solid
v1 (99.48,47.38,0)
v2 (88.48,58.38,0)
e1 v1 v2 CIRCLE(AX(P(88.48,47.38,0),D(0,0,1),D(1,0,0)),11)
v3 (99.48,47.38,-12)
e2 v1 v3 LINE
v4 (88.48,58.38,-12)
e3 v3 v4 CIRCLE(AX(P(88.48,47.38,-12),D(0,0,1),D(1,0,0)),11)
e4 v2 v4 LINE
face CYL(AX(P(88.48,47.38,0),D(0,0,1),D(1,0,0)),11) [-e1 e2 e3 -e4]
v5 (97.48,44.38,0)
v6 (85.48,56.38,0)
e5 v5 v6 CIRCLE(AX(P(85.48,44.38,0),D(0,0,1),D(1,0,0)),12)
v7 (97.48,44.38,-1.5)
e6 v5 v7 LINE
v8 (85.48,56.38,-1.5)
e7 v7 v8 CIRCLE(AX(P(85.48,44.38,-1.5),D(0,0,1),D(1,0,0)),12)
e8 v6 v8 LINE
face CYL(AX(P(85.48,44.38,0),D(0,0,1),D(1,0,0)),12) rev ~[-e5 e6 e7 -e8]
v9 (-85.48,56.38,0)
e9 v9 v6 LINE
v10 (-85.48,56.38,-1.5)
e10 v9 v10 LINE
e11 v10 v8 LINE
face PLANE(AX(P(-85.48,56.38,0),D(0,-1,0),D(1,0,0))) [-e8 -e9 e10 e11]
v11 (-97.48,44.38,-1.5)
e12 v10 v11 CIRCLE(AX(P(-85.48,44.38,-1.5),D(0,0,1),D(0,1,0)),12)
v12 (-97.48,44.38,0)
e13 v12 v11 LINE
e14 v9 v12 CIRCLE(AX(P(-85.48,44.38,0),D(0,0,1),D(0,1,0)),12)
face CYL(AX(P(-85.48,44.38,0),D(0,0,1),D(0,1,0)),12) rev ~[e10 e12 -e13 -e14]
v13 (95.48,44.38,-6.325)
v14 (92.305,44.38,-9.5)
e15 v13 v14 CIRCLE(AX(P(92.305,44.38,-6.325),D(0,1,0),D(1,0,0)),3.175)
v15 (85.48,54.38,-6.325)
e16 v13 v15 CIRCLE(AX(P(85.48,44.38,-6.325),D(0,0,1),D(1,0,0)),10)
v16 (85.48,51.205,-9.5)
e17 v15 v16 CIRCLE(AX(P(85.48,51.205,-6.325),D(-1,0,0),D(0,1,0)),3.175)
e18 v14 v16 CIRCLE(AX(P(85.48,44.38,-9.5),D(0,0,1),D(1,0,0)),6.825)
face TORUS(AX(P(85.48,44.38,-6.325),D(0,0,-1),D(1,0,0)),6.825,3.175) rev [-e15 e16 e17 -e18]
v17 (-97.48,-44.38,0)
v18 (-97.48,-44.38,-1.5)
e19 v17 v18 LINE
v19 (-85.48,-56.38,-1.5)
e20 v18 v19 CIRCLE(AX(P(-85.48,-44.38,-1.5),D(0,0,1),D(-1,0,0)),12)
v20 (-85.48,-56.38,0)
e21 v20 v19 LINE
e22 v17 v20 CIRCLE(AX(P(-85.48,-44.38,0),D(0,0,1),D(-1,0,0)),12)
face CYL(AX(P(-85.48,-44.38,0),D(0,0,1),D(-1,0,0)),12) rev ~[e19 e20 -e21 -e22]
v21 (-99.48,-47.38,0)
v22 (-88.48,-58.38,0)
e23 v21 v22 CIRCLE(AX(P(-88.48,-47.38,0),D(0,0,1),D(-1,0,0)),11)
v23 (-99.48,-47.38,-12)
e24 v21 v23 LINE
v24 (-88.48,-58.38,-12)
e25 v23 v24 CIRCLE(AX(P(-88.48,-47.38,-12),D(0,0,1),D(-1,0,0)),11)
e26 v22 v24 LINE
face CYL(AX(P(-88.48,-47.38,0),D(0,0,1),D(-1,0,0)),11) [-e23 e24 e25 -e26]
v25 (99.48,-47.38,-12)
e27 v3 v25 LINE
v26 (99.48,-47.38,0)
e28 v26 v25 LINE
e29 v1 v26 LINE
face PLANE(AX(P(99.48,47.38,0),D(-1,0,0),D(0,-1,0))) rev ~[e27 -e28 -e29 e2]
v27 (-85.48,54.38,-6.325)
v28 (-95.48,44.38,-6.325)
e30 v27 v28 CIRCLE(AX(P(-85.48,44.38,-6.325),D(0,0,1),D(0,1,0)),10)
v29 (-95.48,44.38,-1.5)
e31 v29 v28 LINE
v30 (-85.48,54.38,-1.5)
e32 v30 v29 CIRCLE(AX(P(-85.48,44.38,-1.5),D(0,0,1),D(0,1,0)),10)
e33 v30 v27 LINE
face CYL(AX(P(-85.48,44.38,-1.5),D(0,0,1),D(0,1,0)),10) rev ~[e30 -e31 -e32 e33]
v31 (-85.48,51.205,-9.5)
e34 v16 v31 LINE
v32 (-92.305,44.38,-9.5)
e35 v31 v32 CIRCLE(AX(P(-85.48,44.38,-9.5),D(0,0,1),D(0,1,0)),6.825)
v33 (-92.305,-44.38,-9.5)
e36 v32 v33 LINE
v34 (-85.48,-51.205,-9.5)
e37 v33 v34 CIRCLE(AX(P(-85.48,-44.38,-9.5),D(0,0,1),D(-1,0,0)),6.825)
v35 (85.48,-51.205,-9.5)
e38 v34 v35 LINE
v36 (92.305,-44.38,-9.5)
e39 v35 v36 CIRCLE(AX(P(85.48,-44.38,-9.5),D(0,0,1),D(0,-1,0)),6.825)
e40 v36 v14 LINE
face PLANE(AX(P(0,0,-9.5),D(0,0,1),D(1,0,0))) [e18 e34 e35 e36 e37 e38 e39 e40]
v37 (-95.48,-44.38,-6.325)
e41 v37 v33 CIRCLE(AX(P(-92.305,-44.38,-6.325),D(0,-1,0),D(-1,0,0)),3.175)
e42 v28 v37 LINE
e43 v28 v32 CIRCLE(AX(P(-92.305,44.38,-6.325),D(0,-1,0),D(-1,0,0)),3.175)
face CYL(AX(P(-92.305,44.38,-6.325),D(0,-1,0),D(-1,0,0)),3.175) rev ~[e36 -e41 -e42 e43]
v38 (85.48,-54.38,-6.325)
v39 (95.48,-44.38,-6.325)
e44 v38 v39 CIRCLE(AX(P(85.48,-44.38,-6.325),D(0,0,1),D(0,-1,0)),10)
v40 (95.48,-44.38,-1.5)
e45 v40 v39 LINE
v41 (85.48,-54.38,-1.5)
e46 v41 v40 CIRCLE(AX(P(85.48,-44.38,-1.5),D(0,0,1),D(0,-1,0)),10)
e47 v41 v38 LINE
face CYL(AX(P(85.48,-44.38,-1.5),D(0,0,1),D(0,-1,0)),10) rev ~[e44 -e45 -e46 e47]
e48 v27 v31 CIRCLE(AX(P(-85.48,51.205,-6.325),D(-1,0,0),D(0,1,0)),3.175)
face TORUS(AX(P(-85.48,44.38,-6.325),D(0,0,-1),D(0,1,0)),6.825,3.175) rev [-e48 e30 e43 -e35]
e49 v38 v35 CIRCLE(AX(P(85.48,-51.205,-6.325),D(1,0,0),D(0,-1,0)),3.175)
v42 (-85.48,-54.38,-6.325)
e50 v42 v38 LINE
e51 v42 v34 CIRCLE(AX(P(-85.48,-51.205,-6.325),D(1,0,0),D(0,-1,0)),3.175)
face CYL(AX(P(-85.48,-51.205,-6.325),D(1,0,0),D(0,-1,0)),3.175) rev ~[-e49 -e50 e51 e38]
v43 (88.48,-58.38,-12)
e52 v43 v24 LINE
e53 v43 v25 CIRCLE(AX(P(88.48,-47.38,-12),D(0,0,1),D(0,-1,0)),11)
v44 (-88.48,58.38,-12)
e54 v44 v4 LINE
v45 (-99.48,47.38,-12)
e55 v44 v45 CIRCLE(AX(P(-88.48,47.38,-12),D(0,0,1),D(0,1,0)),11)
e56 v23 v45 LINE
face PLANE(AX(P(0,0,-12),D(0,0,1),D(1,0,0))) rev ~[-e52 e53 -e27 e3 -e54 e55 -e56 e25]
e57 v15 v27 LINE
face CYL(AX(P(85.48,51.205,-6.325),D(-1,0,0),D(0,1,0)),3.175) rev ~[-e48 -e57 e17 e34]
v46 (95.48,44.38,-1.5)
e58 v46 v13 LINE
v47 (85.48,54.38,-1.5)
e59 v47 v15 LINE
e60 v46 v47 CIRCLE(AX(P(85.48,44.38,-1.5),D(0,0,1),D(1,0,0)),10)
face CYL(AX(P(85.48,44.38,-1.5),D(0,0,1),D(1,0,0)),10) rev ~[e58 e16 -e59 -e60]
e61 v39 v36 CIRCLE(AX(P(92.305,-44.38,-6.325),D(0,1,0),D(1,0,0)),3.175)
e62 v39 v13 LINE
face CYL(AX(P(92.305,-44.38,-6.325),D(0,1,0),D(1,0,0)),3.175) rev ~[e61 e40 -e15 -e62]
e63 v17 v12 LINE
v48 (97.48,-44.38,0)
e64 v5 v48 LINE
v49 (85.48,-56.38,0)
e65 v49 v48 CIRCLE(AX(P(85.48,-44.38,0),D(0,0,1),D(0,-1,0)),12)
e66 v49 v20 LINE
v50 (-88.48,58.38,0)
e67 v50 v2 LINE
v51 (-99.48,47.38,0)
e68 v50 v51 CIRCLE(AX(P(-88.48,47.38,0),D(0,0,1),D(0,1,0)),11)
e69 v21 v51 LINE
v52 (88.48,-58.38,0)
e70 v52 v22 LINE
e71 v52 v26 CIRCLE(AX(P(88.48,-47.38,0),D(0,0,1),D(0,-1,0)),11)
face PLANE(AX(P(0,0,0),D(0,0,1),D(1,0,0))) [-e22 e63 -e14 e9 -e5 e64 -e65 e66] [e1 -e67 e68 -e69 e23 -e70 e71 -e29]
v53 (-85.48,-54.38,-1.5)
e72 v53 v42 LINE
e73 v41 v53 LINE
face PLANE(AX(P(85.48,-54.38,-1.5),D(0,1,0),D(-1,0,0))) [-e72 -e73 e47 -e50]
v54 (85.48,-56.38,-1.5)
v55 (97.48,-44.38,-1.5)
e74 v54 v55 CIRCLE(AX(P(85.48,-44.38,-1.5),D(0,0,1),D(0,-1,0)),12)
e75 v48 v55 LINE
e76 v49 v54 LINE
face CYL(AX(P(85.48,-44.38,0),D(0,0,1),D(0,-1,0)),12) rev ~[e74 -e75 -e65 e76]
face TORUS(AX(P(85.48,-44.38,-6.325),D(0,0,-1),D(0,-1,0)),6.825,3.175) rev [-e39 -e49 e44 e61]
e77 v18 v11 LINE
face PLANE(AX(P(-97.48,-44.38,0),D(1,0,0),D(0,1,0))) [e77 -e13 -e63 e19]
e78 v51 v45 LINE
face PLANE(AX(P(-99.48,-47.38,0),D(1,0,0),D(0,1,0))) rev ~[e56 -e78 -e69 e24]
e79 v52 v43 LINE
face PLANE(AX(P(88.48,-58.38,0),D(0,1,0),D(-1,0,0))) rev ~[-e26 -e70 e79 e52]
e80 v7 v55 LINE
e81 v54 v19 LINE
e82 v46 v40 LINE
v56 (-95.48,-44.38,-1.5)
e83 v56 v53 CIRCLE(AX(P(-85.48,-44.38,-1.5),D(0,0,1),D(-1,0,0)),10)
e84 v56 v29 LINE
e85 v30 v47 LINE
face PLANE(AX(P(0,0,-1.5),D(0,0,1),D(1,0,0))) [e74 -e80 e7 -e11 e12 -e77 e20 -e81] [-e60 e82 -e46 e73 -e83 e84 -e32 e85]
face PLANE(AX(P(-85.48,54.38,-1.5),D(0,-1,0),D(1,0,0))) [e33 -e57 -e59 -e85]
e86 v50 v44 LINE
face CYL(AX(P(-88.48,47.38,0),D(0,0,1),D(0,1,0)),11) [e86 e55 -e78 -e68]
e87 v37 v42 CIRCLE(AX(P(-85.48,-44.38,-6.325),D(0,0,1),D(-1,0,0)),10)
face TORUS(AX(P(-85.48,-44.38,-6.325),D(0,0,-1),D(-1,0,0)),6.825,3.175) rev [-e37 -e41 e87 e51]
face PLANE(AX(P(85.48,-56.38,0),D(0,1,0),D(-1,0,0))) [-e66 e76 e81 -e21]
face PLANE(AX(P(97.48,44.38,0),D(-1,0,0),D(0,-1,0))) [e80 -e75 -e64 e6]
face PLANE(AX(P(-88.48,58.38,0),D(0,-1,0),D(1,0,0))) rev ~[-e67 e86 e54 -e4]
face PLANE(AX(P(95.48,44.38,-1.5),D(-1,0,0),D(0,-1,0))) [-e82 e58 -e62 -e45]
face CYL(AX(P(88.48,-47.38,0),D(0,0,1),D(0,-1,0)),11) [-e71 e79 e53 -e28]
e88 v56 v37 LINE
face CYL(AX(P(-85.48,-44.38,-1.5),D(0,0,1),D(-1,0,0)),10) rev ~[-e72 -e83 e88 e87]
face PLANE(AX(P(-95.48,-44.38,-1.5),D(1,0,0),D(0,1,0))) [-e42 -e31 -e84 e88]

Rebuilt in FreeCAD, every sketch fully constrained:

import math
import FreeCAD as App
import Part
import Sketcher
from FreeCAD import Vector
Q = App.Units.Quantity


def edges_at(feature, points):
    """Names of the edges that pass closest to the given points."""
    edges = feature.Shape.Edges
    near = lambda p: min(range(len(edges)), key=lambda i: edges[i].distToShape(Part.Vertex(*p))[0])
    return sorted({f"Edge{near(p) + 1}" for p in points})

doc = App.newDocument("Part")
body = doc.addObject("PartDesign::Body", "Body")

# Sketch on XY plane
sketch1 = doc.addObject("Sketcher::SketchObject", "Sketch")
body.addObject(sketch1)
sketch1.AttachmentSupport = (doc.XY_Plane, [""])
sketch1.MapMode = "FlatFace"
sketch1.addGeometry(Part.LineSegment(Vector(88, 58, 0), Vector(-88, 58, 0)), False)
sketch1.addGeometry(Part.ArcOfCircle(Part.Circle(Vector(-88, 47, 0), Vector(0, 0, 1), 11), math.radians(90), math.radians(180)), False)
sketch1.addGeometry(Part.LineSegment(Vector(-99, 47, 0), Vector(-99, -47, 0)), False)
sketch1.addGeometry(Part.ArcOfCircle(Part.Circle(Vector(-88, -47, 0), Vector(0, 0, 1), 11), math.radians(180), math.radians(270)), False)
sketch1.addGeometry(Part.LineSegment(Vector(-88, -58, 0), Vector(88, -58, 0)), False)
sketch1.addGeometry(Part.ArcOfCircle(Part.Circle(Vector(88, -47, 0), Vector(0, 0, 1), 11), math.radians(-90), math.radians(0)), False)
sketch1.addGeometry(Part.LineSegment(Vector(99, -47, 0), Vector(99, 47, 0)), False)
sketch1.addGeometry(Part.ArcOfCircle(Part.Circle(Vector(88, 47, 0), Vector(0, 0, 1), 11), math.radians(0), math.radians(90)), False)
sketch1.addConstraint(Sketcher.Constraint("Tangent", 0, 2, 1, 1))
sketch1.addConstraint(Sketcher.Constraint("Tangent", 1, 2, 2, 1))
sketch1.addConstraint(Sketcher.Constraint("Tangent", 2, 2, 3, 1))
sketch1.addConstraint(Sketcher.Constraint("Tangent", 3, 2, 4, 1))
sketch1.addConstraint(Sketcher.Constraint("Tangent", 4, 2, 5, 1))
sketch1.addConstraint(Sketcher.Constraint("Tangent", 5, 2, 6, 1))
sketch1.addConstraint(Sketcher.Constraint("Tangent", 6, 2, 7, 1))
sketch1.addConstraint(Sketcher.Constraint("Tangent", 7, 2, 0, 1))
sketch1.addConstraint(Sketcher.Constraint("Horizontal", 0))
sketch1.addConstraint(Sketcher.Constraint("Vertical", 2))
sketch1.addConstraint(Sketcher.Constraint("Horizontal", 4))
sketch1.addConstraint(Sketcher.Constraint("Vertical", 6))
sketch1.addConstraint(Sketcher.Constraint("Equal", 1, 3))
sketch1.addConstraint(Sketcher.Constraint("Equal", 3, 5))
sketch1.addConstraint(Sketcher.Constraint("Equal", 5, 7))
sketch1.addConstraint(Sketcher.Constraint("Symmetric", 1, 3, 5, 3, -1, 1))
sketch1.addConstraint(Sketcher.Constraint("Radius", 1, Q("11 mm")))
sketch1.addConstraint(Sketcher.Constraint("DistanceX", 0, 2, 0, 1, Q("176.96 mm")))
sketch1.addConstraint(Sketcher.Constraint("DistanceY", 2, 2, 2, 1, Q("94.76 mm")))
pad1 = doc.addObject("PartDesign::Pad", "Pad")
body.addObject(pad1)
pad1.Profile = sketch1
pad1.Length = 12
pad1.Reversed = True

# Sketch on XY plane
sketch2 = doc.addObject("Sketcher::SketchObject", "Sketch001")
body.addObject(sketch2)
sketch2.AttachmentSupport = (doc.XY_Plane, [""])
sketch2.MapMode = "FlatFace"
sketch2.addGeometry(Part.LineSegment(Vector(85, 56, 0), Vector(-85, 56, 0)), False)
sketch2.addGeometry(Part.ArcOfCircle(Part.Circle(Vector(-85, 44, 0), Vector(0, 0, 1), 12), math.radians(90), math.radians(180)), False)
sketch2.addGeometry(Part.LineSegment(Vector(-97, 44, 0), Vector(-97, -44, 0)), False)
sketch2.addGeometry(Part.ArcOfCircle(Part.Circle(Vector(-85, -44, 0), Vector(0, 0, 1), 12), math.radians(180), math.radians(270)), False)
sketch2.addGeometry(Part.LineSegment(Vector(-85, -56, 0), Vector(85, -56, 0)), False)
sketch2.addGeometry(Part.ArcOfCircle(Part.Circle(Vector(85, -44, 0), Vector(0, 0, 1), 12), math.radians(-90), math.radians(0)), False)
sketch2.addGeometry(Part.LineSegment(Vector(97, -44, 0), Vector(97, 44, 0)), False)
sketch2.addGeometry(Part.ArcOfCircle(Part.Circle(Vector(85, 44, 0), Vector(0, 0, 1), 12), math.radians(0), math.radians(90)), False)
sketch2.addConstraint(Sketcher.Constraint("Tangent", 0, 2, 1, 1))
sketch2.addConstraint(Sketcher.Constraint("Tangent", 1, 2, 2, 1))
sketch2.addConstraint(Sketcher.Constraint("Tangent", 2, 2, 3, 1))
sketch2.addConstraint(Sketcher.Constraint("Tangent", 3, 2, 4, 1))
sketch2.addConstraint(Sketcher.Constraint("Tangent", 4, 2, 5, 1))
sketch2.addConstraint(Sketcher.Constraint("Tangent", 5, 2, 6, 1))
sketch2.addConstraint(Sketcher.Constraint("Tangent", 6, 2, 7, 1))
sketch2.addConstraint(Sketcher.Constraint("Tangent", 7, 2, 0, 1))
sketch2.addConstraint(Sketcher.Constraint("Horizontal", 0))
sketch2.addConstraint(Sketcher.Constraint("Vertical", 2))
sketch2.addConstraint(Sketcher.Constraint("Horizontal", 4))
sketch2.addConstraint(Sketcher.Constraint("Vertical", 6))
sketch2.addConstraint(Sketcher.Constraint("Equal", 1, 3))
sketch2.addConstraint(Sketcher.Constraint("Equal", 3, 5))
sketch2.addConstraint(Sketcher.Constraint("Equal", 5, 7))
sketch2.addConstraint(Sketcher.Constraint("Symmetric", 1, 3, 5, 3, -1, 1))
sketch2.addConstraint(Sketcher.Constraint("Radius", 1, Q("12 mm")))
sketch2.addConstraint(Sketcher.Constraint("DistanceX", 0, 2, 0, 1, Q("170.96 mm")))
sketch2.addConstraint(Sketcher.Constraint("DistanceY", 2, 2, 2, 1, Q("88.76 mm")))
pocket1 = doc.addObject("PartDesign::Pocket", "Pocket")
body.addObject(pocket1)
pocket1.Profile = sketch2
pocket1.Length = 1.5

# Sketch on XY plane
sketch3 = doc.addObject("Sketcher::SketchObject", "Sketch002")
body.addObject(sketch3)
sketch3.AttachmentSupport = (doc.XY_Plane, [""])
sketch3.MapMode = "FlatFace"
sketch3.AttachmentOffset = App.Placement(Vector(0, 0, -1.5), App.Rotation())
sketch3.addGeometry(Part.LineSegment(Vector(85, 54, 0), Vector(-85, 54, 0)), False)
sketch3.addGeometry(Part.ArcOfCircle(Part.Circle(Vector(-85, 44, 0), Vector(0, 0, 1), 10), math.radians(90), math.radians(180)), False)
sketch3.addGeometry(Part.LineSegment(Vector(-95, 44, 0), Vector(-95, -44, 0)), False)
sketch3.addGeometry(Part.ArcOfCircle(Part.Circle(Vector(-85, -44, 0), Vector(0, 0, 1), 10), math.radians(180), math.radians(270)), False)
sketch3.addGeometry(Part.LineSegment(Vector(-85, -54, 0), Vector(85, -54, 0)), False)
sketch3.addGeometry(Part.ArcOfCircle(Part.Circle(Vector(85, -44, 0), Vector(0, 0, 1), 10), math.radians(-90), math.radians(0)), False)
sketch3.addGeometry(Part.LineSegment(Vector(95, -44, 0), Vector(95, 44, 0)), False)
sketch3.addGeometry(Part.ArcOfCircle(Part.Circle(Vector(85, 44, 0), Vector(0, 0, 1), 10), math.radians(0), math.radians(90)), False)
sketch3.addConstraint(Sketcher.Constraint("Tangent", 0, 2, 1, 1))
sketch3.addConstraint(Sketcher.Constraint("Tangent", 1, 2, 2, 1))
sketch3.addConstraint(Sketcher.Constraint("Tangent", 2, 2, 3, 1))
sketch3.addConstraint(Sketcher.Constraint("Tangent", 3, 2, 4, 1))
sketch3.addConstraint(Sketcher.Constraint("Tangent", 4, 2, 5, 1))
sketch3.addConstraint(Sketcher.Constraint("Tangent", 5, 2, 6, 1))
sketch3.addConstraint(Sketcher.Constraint("Tangent", 6, 2, 7, 1))
sketch3.addConstraint(Sketcher.Constraint("Tangent", 7, 2, 0, 1))
sketch3.addConstraint(Sketcher.Constraint("Horizontal", 0))
sketch3.addConstraint(Sketcher.Constraint("Vertical", 2))
sketch3.addConstraint(Sketcher.Constraint("Horizontal", 4))
sketch3.addConstraint(Sketcher.Constraint("Vertical", 6))
sketch3.addConstraint(Sketcher.Constraint("Equal", 1, 3))
sketch3.addConstraint(Sketcher.Constraint("Equal", 3, 5))
sketch3.addConstraint(Sketcher.Constraint("Equal", 5, 7))
sketch3.addConstraint(Sketcher.Constraint("Symmetric", 1, 3, 5, 3, -1, 1))
sketch3.addConstraint(Sketcher.Constraint("Radius", 1, Q("10 mm")))
sketch3.addConstraint(Sketcher.Constraint("DistanceX", 0, 2, 0, 1, Q("170.96 mm")))
sketch3.addConstraint(Sketcher.Constraint("DistanceY", 2, 2, 2, 1, Q("88.76 mm")))
pocket2 = doc.addObject("PartDesign::Pocket", "Pocket001")
body.addObject(pocket2)
pocket2.Profile = sketch3
pocket2.Length = 8
doc.recompute()

fillet = doc.addObject("PartDesign::Fillet", "Fillet")
body.addObject(fillet)
fillet.Base = (pocket2, edges_at(pocket2, [
    (92.551, 51.451, -9.5),
    (95.48, 0, -9.5),
    (92.551, -51.451, -9.5),
    (0, -54.38, -9.5),
    (-92.551, -51.451, -9.5),
    (-95.48, 0, -9.5),
    (-92.551, 51.451, -9.5),
    (0, 54.38, -9.5),
]))
fillet.Radius = 3.175

doc.recompute()
